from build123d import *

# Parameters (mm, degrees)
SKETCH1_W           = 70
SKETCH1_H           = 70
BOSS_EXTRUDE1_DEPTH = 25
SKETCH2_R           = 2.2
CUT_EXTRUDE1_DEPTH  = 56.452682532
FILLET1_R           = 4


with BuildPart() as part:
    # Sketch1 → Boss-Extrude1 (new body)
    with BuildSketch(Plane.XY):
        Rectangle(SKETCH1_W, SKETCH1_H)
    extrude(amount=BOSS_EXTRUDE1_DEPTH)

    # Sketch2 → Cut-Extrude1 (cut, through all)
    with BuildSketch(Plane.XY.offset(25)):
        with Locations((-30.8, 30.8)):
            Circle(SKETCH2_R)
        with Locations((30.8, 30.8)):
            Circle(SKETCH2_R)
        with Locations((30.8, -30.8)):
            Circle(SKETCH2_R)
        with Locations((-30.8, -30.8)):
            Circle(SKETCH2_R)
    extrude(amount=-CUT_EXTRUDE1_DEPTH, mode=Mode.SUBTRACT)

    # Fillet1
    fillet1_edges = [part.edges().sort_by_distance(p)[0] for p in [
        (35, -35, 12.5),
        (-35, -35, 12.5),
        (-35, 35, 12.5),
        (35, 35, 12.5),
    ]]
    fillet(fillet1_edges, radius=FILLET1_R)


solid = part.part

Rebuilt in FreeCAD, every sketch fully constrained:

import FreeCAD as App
import Part
import Sketcher

V = App.Vector
Q = App.Units.Quantity


def edges_at(feature, points):
    """Names of the edges that pass closest to the given points."""
    edges = feature.Shape.Edges
    near = lambda p: min(range(len(edges)), key=lambda i: edges[i].distToShape(Part.Vertex(*p))[0])
    return sorted({f"Edge{near(p) + 1}" for p in points})

doc = App.newDocument("Part")
params = doc.addObject("Spreadsheet::Sheet", "Params")
for row, (alias, value) in enumerate([
    ("sketch1_width", "70 mm"),
    ("pad1_length", "25 mm"),
    ("sketch2_diameter", "4.4 mm"),
    ("fillet_radius", "4 mm"),
], start=1):
    params.set(f"A{row}", alias)
    params.set(f"B{row}", "=" + value)
    params.setAlias(f"B{row}", alias)

body = doc.addObject("PartDesign::Body", "Body")

# Sketch on XY plane
sketch1 = body.newObject("Sketcher::SketchObject", "Sketch")
sketch1.AttachmentSupport = (doc.getObject("XY_Plane"), [""])
sketch1.MapMode = "FlatFace"
sketch1.addGeometry([
    Part.LineSegment(V(-35, 35, 0), V(-35, -35, 0)),
    Part.LineSegment(V(-35, -35, 0), V(35, -35, 0)),
    Part.LineSegment(V(35, -35, 0), V(35, 35, 0)),
    Part.LineSegment(V(35, 35, 0), V(-35, 35, 0)),
], False)
sketch1.addConstraint([
    Sketcher.Constraint("Coincident", 0, 2, 1, 1),
    Sketcher.Constraint("Coincident", 1, 2, 2, 1),
    Sketcher.Constraint("Coincident", 2, 2, 3, 1),
    Sketcher.Constraint("Coincident", 3, 2, 0, 1),
    Sketcher.Constraint("Vertical", 0),
    Sketcher.Constraint("Horizontal", 1),
    Sketcher.Constraint("Vertical", 2),
    Sketcher.Constraint("Horizontal", 3),
    Sketcher.Constraint("Symmetric", 0, 2, 2, 2, -1, 1),
    Sketcher.Constraint("Equal", 3, 0),
    Sketcher.Constraint("DistanceX", 1, 1, 1, 2, Q("70 mm")),
])
sketch1.setExpression("Constraints[10]", "Params.sketch1_width")
pad1 = body.newObject("PartDesign::Pad", "Pad")
pad1.Profile = sketch1
pad1.setExpression("Length", "Params.pad1_length")

# Sketch on XY plane
sketch2 = body.newObject("Sketcher::SketchObject", "Sketch001")
sketch2.AttachmentSupport = (doc.getObject("XY_Plane"), [""])
sketch2.MapMode = "FlatFace"
sketch2.AttachmentOffset = App.Placement(V(0, 0, 25), App.Rotation())
sketch2.addGeometry([
    Part.Circle(V(-30.8, 30.8, 0), V(0, 0, 1), 2.2),
    Part.Circle(V(30.8, 30.8, 0), V(0, 0, 1), 2.2),
    Part.Circle(V(30.8, -30.8, 0), V(0, 0, 1), 2.2),
    Part.Circle(V(-30.8, -30.8, 0), V(0, 0, 1), 2.2),
], False)
sketch2.addConstraint([
    Sketcher.Constraint("Equal", 0, 1),
    Sketcher.Constraint("Equal", 1, 2),
    Sketcher.Constraint("Equal", 2, 3),
    Sketcher.Constraint("Symmetric", 0, 3, 2, 3, -1, 1),
    Sketcher.Constraint("Symmetric", 1, 3, 3, 3, -1, 1),
    Sketcher.Constraint("Symmetric", 0, 3, 1, 3, -2),
    Sketcher.Constraint("Diameter", 0, Q("4.4 mm")),
    Sketcher.Constraint("DistanceX", 0, 3, -1, 1, Q("30.8 mm")),
    Sketcher.Constraint("DistanceY", -1, 1, 0, 3, Q("30.8 mm")),
])
sketch2.setExpression("Constraints[6]", "Params.sketch2_diameter")
pocket1 = body.newObject("PartDesign::Pocket", "Pocket")
pocket1.Profile = sketch2
pocket1.Type = "ThroughAll"
doc.recompute()

fillet = body.newObject("PartDesign::Fillet", "Fillet")
fillet.Base = (pocket1, edges_at(pocket1, [
    (35, -35, 12.5),
    (-35, -35, 12.5),
    (-35, 35, 12.5),
    (35, 35, 12.5),
]))
fillet.setExpression("Radius", "Params.fillet_radius")

doc.recompute()
